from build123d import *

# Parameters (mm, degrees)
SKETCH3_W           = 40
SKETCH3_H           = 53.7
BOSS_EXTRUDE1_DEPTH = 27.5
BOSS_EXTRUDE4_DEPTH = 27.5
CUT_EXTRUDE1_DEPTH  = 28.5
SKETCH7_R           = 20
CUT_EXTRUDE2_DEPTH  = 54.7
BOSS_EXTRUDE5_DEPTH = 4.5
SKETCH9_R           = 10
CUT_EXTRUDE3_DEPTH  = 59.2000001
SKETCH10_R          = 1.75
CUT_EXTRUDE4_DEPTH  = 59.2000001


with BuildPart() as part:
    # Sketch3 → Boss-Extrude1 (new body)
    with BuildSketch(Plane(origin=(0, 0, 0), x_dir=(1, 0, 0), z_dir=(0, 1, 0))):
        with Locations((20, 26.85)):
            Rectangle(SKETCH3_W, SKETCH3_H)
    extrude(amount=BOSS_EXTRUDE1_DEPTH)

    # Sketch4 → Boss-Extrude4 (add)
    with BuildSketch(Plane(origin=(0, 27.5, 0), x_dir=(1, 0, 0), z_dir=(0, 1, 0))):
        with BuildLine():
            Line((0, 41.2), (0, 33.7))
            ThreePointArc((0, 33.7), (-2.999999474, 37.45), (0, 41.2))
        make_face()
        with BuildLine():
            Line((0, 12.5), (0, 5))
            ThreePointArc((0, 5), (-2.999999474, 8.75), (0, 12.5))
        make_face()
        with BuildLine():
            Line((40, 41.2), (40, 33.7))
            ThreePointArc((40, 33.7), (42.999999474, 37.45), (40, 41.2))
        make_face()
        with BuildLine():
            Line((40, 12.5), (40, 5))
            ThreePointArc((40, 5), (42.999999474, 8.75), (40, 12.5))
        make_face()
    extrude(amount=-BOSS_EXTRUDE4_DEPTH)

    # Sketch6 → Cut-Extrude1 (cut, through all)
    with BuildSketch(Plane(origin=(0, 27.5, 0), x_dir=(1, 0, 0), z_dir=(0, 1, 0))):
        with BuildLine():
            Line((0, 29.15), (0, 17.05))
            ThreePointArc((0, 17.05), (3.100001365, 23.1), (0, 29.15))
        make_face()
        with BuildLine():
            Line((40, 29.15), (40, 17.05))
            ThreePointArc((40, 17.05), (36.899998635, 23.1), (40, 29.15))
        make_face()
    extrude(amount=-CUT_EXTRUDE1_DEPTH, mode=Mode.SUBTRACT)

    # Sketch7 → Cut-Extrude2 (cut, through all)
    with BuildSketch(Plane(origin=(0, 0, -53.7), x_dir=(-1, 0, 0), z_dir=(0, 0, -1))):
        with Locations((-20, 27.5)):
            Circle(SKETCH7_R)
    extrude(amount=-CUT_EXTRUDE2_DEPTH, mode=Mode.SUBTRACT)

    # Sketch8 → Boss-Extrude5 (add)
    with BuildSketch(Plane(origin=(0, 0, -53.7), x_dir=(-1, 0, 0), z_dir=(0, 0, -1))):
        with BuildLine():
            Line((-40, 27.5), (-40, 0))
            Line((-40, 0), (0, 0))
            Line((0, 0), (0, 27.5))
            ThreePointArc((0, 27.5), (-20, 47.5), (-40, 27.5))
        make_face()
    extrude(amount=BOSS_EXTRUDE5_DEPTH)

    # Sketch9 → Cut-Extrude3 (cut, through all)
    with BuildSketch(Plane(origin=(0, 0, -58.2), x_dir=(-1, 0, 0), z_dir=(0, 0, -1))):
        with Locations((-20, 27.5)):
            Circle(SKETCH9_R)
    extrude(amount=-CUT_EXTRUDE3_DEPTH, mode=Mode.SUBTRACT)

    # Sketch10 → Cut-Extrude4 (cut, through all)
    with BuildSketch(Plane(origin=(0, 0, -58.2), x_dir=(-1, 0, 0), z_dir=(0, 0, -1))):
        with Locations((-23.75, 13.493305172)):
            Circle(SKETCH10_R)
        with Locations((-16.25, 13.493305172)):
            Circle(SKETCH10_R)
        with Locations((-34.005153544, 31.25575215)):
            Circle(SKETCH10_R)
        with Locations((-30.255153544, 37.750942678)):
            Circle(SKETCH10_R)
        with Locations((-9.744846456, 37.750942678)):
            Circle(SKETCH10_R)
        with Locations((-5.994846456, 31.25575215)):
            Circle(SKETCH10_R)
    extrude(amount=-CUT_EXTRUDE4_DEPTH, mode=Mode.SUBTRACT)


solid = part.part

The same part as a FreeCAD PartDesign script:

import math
import FreeCAD as App
import Part
import Sketcher

V = App.Vector
Q = App.Units.Quantity

doc = App.newDocument("Part")
body = doc.addObject("PartDesign::Body", "Body")

# Sketch on XZ plane
sketch1 = body.newObject("Sketcher::SketchObject", "Sketch")
sketch1.AttachmentSupport = (doc.getObject("XZ_Plane"), [""])
sketch1.MapMode = "FlatFace"
sketch1.addGeometry(Part.LineSegment(V(0, -53.7, 0), V(0, 0, 0)), False)
sketch1.addGeometry(Part.LineSegment(V(0, 0, 0), V(40, 0, 0)), False)
sketch1.addGeometry(Part.LineSegment(V(40, 0, 0), V(40, -53.7, 0)), False)
sketch1.addGeometry(Part.LineSegment(V(40, -53.7, 0), V(0, -53.7, 0)), False)
sketch1.addConstraint(Sketcher.Constraint("Coincident", 0, 2, 1, 1))
sketch1.addConstraint(Sketcher.Constraint("Coincident", 1, 2, 2, 1))
sketch1.addConstraint(Sketcher.Constraint("Coincident", 2, 2, 3, 1))
sketch1.addConstraint(Sketcher.Constraint("Coincident", 3, 2, 0, 1))
sketch1.addConstraint(Sketcher.Constraint("Vertical", 0))
sketch1.addConstraint(Sketcher.Constraint("Horizontal", 1))
sketch1.addConstraint(Sketcher.Constraint("Vertical", 2))
sketch1.addConstraint(Sketcher.Constraint("Horizontal", 3))
sketch1.addConstraint(Sketcher.Constraint("Coincident", 0, 2, -1, 1))
sketch1.addConstraint(Sketcher.Constraint("DistanceX", 1, 1, 1, 2, Q("40 mm")))
sketch1.addConstraint(Sketcher.Constraint("DistanceY", 0, 1, 0, 2, Q("53.7 mm")))
pad1 = body.newObject("PartDesign::Pad", "Pad")
pad1.Profile = sketch1
pad1.Length = 27.5
pad1.Reversed = True

# Sketch on XZ plane
sketch2 = body.newObject("Sketcher::SketchObject", "Sketch001")
sketch2.AttachmentSupport = (doc.getObject("XZ_Plane"), [""])
sketch2.MapMode = "FlatFace"
sketch2.AttachmentOffset = App.Placement(V(0, 0, -27.5), App.Rotation())
sketch2.addGeometry(Part.LineSegment(V(0, -33.7, 0), V(0, -41.2, 0)), False)
sketch2.addGeometry(Part.ArcOfCircle(Part.Circle(V(0.843751, -37.45, 0), V(0, 0, 1), 3.84375), math.radians(102.680393), math.radians(257.319607)), False)
sketch2.addGeometry(Part.LineSegment(V(0, -5, 0), V(0, -12.5, 0)), False)
sketch2.addGeometry(Part.ArcOfCircle(Part.Circle(V(0.843751, -8.75, 0), V(0, 0, 1), 3.84375), math.radians(102.680393), math.radians(257.319607)), False)
sketch2.addGeometry(Part.LineSegment(V(40, -41.2, 0), V(40, -33.7, 0)), False)
sketch2.addGeometry(Part.ArcOfCircle(Part.Circle(V(39.156249, -37.45, 0), V(0, 0, 1), 3.84375), math.radians(-77.319607), math.radians(77.319607)), False)
sketch2.addGeometry(Part.LineSegment(V(40, -12.5, 0), V(40, -5, 0)), False)
sketch2.addGeometry(Part.ArcOfCircle(Part.Circle(V(39.156249, -8.75, 0), V(0, 0, 1), 3.84375), math.radians(-77.319607), math.radians(77.319607)), False)
sketch2.addConstraint(Sketcher.Constraint("Coincident", 0, 1, 1, 1))
sketch2.addConstraint(Sketcher.Constraint("Coincident", 1, 2, 0, 2))
sketch2.addConstraint(Sketcher.Constraint("Coincident", 2, 1, 3, 1))
sketch2.addConstraint(Sketcher.Constraint("Coincident", 3, 2, 2, 2))
sketch2.addConstraint(Sketcher.Constraint("Coincident", 4, 1, 5, 1))
sketch2.addConstraint(Sketcher.Constraint("Coincident", 5, 2, 4, 2))
sketch2.addConstraint(Sketcher.Constraint("Coincident", 6, 1, 7, 1))
sketch2.addConstraint(Sketcher.Constraint("Coincident", 7, 2, 6, 2))
sketch2.addConstraint(Sketcher.Constraint("Vertical", 0))
sketch2.addConstraint(Sketcher.Constraint("Vertical", 2))
sketch2.addConstraint(Sketcher.Constraint("Vertical", 4))
sketch2.addConstraint(Sketcher.Constraint("Vertical", 6))
sketch2.addConstraint(Sketcher.Constraint("Equal", 1, 3))
sketch2.addConstraint(Sketcher.Constraint("Equal", 3, 5))
sketch2.addConstraint(Sketcher.Constraint("Equal", 5, 7))
sketch2.addConstraint(Sketcher.Constraint("PointOnObject", 0, 1, -2))
sketch2.addConstraint(Sketcher.Constraint("PointOnObject", 2, 1, -2))
sketch2.addConstraint(Sketcher.Constraint("Horizontal", 1, 3, 5, 3))
sketch2.addConstraint(Sketcher.Constraint("Horizontal", 3, 3, 7, 3))
sketch2.addConstraint(Sketcher.Constraint("Horizontal", 1, 2, 4, 1))
sketch2.addConstraint(Sketcher.Constraint("Horizontal", 3, 2, 6, 1))
sketch2.addConstraint(Sketcher.Constraint("Vertical", 1, 3, 3, 3))
sketch2.addConstraint(Sketcher.Constraint("Vertical", 5, 3, 7, 3))
sketch2.addConstraint(Sketcher.Constraint("DistanceY", 0, 2, 0, 1, Q("7.5 mm")))
sketch2.addConstraint(Sketcher.Constraint("DistanceY", 2, 1, -1, 1, Q("5 mm")))
sketch2.addConstraint(Sketcher.Constraint("DistanceX", -1, 1, 4, 1, Q("40 mm")))
sketch2.addConstraint(Sketcher.Constraint("DistanceY", 0, 1, -1, 1, Q("33.7 mm")))
sketch2.addConstraint(Sketcher.Constraint("Radius", 1, Q("3.84375 mm")))
pad2 = body.newObject("PartDesign::Pad", "Pad001")
pad2.Profile = sketch2
pad2.Length = 27.5

# Sketch on XZ plane
sketch3 = body.newObject("Sketcher::SketchObject", "Sketch002")
sketch3.AttachmentSupport = (doc.getObject("XZ_Plane"), [""])
sketch3.MapMode = "FlatFace"
sketch3.AttachmentOffset = App.Placement(V(0, 0, -27.5), App.Rotation())
sketch3.addGeometry(Part.LineSegment(V(0, -29.15, 0), V(0, -17.05, 0)), False)
sketch3.addGeometry(Part.ArcOfCircle(Part.Circle(V(-4.353626, -23.1, 0), V(0, 0, 1), 7.453627), math.radians(-54.260924), math.radians(54.260924)), False)
sketch3.addGeometry(Part.LineSegment(V(40, -17.05, 0), V(40, -29.15, 0)), False)
sketch3.addGeometry(Part.ArcOfCircle(Part.Circle(V(44.353626, -23.1, 0), V(0, 0, 1), 7.453627), math.radians(125.739076), math.radians(234.260924)), False)
sketch3.addConstraint(Sketcher.Constraint("Coincident", 0, 1, 1, 1))
sketch3.addConstraint(Sketcher.Constraint("Coincident", 1, 2, 0, 2))
sketch3.addConstraint(Sketcher.Constraint("Coincident", 2, 1, 3, 1))
sketch3.addConstraint(Sketcher.Constraint("Coincident", 3, 2, 2, 2))
sketch3.addConstraint(Sketcher.Constraint("Vertical", 0))
sketch3.addConstraint(Sketcher.Constraint("Vertical", 2))
sketch3.addConstraint(Sketcher.Constraint("Equal", 1, 3))
sketch3.addConstraint(Sketcher.Constraint("PointOnObject", 0, 1, -2))
sketch3.addConstraint(Sketcher.Constraint("Horizontal", 1, 3, 3, 3))
sketch3.addConstraint(Sketcher.Constraint("Horizontal", 1, 2, 2, 1))
sketch3.addConstraint(Sketcher.Constraint("DistanceY", 0, 1, 0, 2, Q("12.1 mm")))
sketch3.addConstraint(Sketcher.Constraint("DistanceX", -1, 1, 2, 1, Q("40 mm")))
sketch3.addConstraint(Sketcher.Constraint("DistanceY", 1, 3, -1, 1, Q("23.1 mm")))
sketch3.addConstraint(Sketcher.Constraint("Radius", 1, Q("7.453627 mm")))
pocket1 = body.newObject("PartDesign::Pocket", "Pocket")
pocket1.Profile = sketch3
pocket1.Type = "ThroughAll"
pocket1.Reversed = True

# Sketch on XY plane
sketch4 = body.newObject("Sketcher::SketchObject", "Sketch003")
sketch4.AttachmentSupport = (doc.getObject("XY_Plane"), [""])
sketch4.MapMode = "FlatFace"
sketch4.AttachmentOffset = App.Placement(V(0, 0, -53.7), App.Rotation())
sketch4.addGeometry(Part.Circle(V(20, 27.5, 0), V(0, 0, 1), 20), False)
sketch4.addConstraint(Sketcher.Constraint("Diameter", 0, Q("40 mm")))
sketch4.addConstraint(Sketcher.Constraint("DistanceX", -1, 1, 0, 3, Q("20 mm")))
sketch4.addConstraint(Sketcher.Constraint("DistanceY", -1, 1, 0, 3, Q("27.5 mm")))
pocket2 = body.newObject("PartDesign::Pocket", "Pocket001")
pocket2.Profile = sketch4
pocket2.Type = "ThroughAll"
pocket2.Reversed = True

# Sketch on XY plane
sketch5 = body.newObject("Sketcher::SketchObject", "Sketch004")
sketch5.AttachmentSupport = (doc.getObject("XY_Plane"), [""])
sketch5.MapMode = "FlatFace"
sketch5.AttachmentOffset = App.Placement(V(0, 0, -53.7), App.Rotation())
sketch5.addGeometry(Part.LineSegment(V(40, 27.5, 0), V(40, 0, 0)), False)
sketch5.addGeometry(Part.LineSegment(V(40, 0, 0), V(0, 0, 0)), False)
sketch5.addGeometry(Part.LineSegment(V(0, 0, 0), V(0, 27.5, 0)), False)
sketch5.addGeometry(Part.ArcOfCircle(Part.Circle(V(20, 27.5, 0), V(0, 0, 1), 20), math.radians(0), math.radians(180)), False)
sketch5.addConstraint(Sketcher.Constraint("Coincident", 0, 2, 1, 1))
sketch5.addConstraint(Sketcher.Constraint("Coincident", 1, 2, 2, 1))
sketch5.addConstraint(Sketcher.Constraint("Tangent", 2, 2, 3, 2))
sketch5.addConstraint(Sketcher.Constraint("Tangent", 3, 1, 0, 1))
sketch5.addConstraint(Sketcher.Constraint("Vertical", 0))
sketch5.addConstraint(Sketcher.Constraint("Horizontal", 1))
sketch5.addConstraint(Sketcher.Constraint("Vertical", 2))
sketch5.addConstraint(Sketcher.Constraint("Coincident", 1, 2, -1, 1))
sketch5.addConstraint(Sketcher.Constraint("Radius", 3, Q("20 mm")))
sketch5.addConstraint(Sketcher.Constraint("DistanceY", 0, 2, 0, 1, Q("27.5 mm")))
pad3 = body.newObject("PartDesign::Pad", "Pad002")
pad3.Profile = sketch5
pad3.Length = 4.5
pad3.Reversed = True

# Sketch on XY plane
sketch6 = body.newObject("Sketcher::SketchObject", "Sketch005")
sketch6.AttachmentSupport = (doc.getObject("XY_Plane"), [""])
sketch6.MapMode = "FlatFace"
sketch6.AttachmentOffset = App.Placement(V(0, 0, -58.2), App.Rotation())
sketch6.addGeometry(Part.Circle(V(20, 27.5, 0), V(0, 0, 1), 10), False)
sketch6.addConstraint(Sketcher.Constraint("Diameter", 0, Q("20 mm")))
sketch6.addConstraint(Sketcher.Constraint("DistanceX", -1, 1, 0, 3, Q("20 mm")))
sketch6.addConstraint(Sketcher.Constraint("DistanceY", -1, 1, 0, 3, Q("27.5 mm")))
pocket3 = body.newObject("PartDesign::Pocket", "Pocket002")
pocket3.Profile = sketch6
pocket3.Type = "ThroughAll"
pocket3.Reversed = True

# Sketch on XY plane
sketch7 = body.newObject("Sketcher::SketchObject", "Sketch006")
sketch7.AttachmentSupport = (doc.getObject("XY_Plane"), [""])
sketch7.MapMode = "FlatFace"
sketch7.AttachmentOffset = App.Placement(V(0, 0, -58.2), App.Rotation())
sketch7.addGeometry(Part.Circle(V(23.75, 13.493305, 0), V(0, 0, 1), 1.75), False)
sketch7.addGeometry(Part.Circle(V(16.25, 13.493305, 0), V(0, 0, 1), 1.75), False)
sketch7.addGeometry(Part.Circle(V(34.005154, 31.255752, 0), V(0, 0, 1), 1.75), False)
sketch7.addGeometry(Part.Circle(V(30.255154, 37.750943, 0), V(0, 0, 1), 1.75), False)
sketch7.addGeometry(Part.Circle(V(9.744846, 37.750943, 0), V(0, 0, 1), 1.75), False)
sketch7.addGeometry(Part.Circle(V(5.994846, 31.255752, 0), V(0, 0, 1), 1.75), False)
sketch7.addConstraint(Sketcher.Constraint("Equal", 0, 1))
sketch7.addConstraint(Sketcher.Constraint("Equal", 1, 2))
sketch7.addConstraint(Sketcher.Constraint("Equal", 2, 3))
sketch7.addConstraint(Sketcher.Constraint("Equal", 3, 4))
sketch7.addConstraint(Sketcher.Constraint("Equal", 4, 5))
sketch7.addConstraint(Sketcher.Constraint("Horizontal", 0, 3, 1, 3))
sketch7.addConstraint(Sketcher.Constraint("Horizontal", 3, 3, 4, 3))
sketch7.addConstraint(Sketcher.Constraint("Horizontal", 2, 3, 5, 3))
sketch7.addConstraint(Sketcher.Constraint("Diameter", 0, Q("3.5 mm")))
sketch7.addConstraint(Sketcher.Constraint("DistanceX", 1, 3, 0, 3, Q("7.5 mm")))
sketch7.addConstraint(Sketcher.Constraint("DistanceX", -1, 1, 0, 3, Q("23.75 mm")))
sketch7.addConstraint(Sketcher.Constraint("DistanceX", 3, 3, 2, 3, Q("3.75 mm")))
sketch7.addConstraint(Sketcher.Constraint("DistanceX", 5, 3, 4, 3, Q("3.75 mm")))
sketch7.addConstraint(Sketcher.Constraint("DistanceY", 2, 3, 3, 3, Q("6.495191 mm")))
sketch7.addConstraint(Sketcher.Constraint("DistanceY", -1, 1, 0, 3, Q("13.493305 mm")))
sketch7.addConstraint(Sketcher.Constraint("DistanceX", -1, 1, 2, 3, Q("34.005154 mm")))
sketch7.addConstraint(Sketcher.Constraint("DistanceY", -1, 1, 2, 3, Q("31.255752 mm")))
sketch7.addConstraint(Sketcher.Constraint("DistanceX", -1, 1, 4, 3, Q("9.744846 mm")))
pocket4 = body.newObject("PartDesign::Pocket", "Pocket003")
pocket4.Profile = sketch7
pocket4.Type = "ThroughAll"
pocket4.Reversed = True

doc.recompute()
